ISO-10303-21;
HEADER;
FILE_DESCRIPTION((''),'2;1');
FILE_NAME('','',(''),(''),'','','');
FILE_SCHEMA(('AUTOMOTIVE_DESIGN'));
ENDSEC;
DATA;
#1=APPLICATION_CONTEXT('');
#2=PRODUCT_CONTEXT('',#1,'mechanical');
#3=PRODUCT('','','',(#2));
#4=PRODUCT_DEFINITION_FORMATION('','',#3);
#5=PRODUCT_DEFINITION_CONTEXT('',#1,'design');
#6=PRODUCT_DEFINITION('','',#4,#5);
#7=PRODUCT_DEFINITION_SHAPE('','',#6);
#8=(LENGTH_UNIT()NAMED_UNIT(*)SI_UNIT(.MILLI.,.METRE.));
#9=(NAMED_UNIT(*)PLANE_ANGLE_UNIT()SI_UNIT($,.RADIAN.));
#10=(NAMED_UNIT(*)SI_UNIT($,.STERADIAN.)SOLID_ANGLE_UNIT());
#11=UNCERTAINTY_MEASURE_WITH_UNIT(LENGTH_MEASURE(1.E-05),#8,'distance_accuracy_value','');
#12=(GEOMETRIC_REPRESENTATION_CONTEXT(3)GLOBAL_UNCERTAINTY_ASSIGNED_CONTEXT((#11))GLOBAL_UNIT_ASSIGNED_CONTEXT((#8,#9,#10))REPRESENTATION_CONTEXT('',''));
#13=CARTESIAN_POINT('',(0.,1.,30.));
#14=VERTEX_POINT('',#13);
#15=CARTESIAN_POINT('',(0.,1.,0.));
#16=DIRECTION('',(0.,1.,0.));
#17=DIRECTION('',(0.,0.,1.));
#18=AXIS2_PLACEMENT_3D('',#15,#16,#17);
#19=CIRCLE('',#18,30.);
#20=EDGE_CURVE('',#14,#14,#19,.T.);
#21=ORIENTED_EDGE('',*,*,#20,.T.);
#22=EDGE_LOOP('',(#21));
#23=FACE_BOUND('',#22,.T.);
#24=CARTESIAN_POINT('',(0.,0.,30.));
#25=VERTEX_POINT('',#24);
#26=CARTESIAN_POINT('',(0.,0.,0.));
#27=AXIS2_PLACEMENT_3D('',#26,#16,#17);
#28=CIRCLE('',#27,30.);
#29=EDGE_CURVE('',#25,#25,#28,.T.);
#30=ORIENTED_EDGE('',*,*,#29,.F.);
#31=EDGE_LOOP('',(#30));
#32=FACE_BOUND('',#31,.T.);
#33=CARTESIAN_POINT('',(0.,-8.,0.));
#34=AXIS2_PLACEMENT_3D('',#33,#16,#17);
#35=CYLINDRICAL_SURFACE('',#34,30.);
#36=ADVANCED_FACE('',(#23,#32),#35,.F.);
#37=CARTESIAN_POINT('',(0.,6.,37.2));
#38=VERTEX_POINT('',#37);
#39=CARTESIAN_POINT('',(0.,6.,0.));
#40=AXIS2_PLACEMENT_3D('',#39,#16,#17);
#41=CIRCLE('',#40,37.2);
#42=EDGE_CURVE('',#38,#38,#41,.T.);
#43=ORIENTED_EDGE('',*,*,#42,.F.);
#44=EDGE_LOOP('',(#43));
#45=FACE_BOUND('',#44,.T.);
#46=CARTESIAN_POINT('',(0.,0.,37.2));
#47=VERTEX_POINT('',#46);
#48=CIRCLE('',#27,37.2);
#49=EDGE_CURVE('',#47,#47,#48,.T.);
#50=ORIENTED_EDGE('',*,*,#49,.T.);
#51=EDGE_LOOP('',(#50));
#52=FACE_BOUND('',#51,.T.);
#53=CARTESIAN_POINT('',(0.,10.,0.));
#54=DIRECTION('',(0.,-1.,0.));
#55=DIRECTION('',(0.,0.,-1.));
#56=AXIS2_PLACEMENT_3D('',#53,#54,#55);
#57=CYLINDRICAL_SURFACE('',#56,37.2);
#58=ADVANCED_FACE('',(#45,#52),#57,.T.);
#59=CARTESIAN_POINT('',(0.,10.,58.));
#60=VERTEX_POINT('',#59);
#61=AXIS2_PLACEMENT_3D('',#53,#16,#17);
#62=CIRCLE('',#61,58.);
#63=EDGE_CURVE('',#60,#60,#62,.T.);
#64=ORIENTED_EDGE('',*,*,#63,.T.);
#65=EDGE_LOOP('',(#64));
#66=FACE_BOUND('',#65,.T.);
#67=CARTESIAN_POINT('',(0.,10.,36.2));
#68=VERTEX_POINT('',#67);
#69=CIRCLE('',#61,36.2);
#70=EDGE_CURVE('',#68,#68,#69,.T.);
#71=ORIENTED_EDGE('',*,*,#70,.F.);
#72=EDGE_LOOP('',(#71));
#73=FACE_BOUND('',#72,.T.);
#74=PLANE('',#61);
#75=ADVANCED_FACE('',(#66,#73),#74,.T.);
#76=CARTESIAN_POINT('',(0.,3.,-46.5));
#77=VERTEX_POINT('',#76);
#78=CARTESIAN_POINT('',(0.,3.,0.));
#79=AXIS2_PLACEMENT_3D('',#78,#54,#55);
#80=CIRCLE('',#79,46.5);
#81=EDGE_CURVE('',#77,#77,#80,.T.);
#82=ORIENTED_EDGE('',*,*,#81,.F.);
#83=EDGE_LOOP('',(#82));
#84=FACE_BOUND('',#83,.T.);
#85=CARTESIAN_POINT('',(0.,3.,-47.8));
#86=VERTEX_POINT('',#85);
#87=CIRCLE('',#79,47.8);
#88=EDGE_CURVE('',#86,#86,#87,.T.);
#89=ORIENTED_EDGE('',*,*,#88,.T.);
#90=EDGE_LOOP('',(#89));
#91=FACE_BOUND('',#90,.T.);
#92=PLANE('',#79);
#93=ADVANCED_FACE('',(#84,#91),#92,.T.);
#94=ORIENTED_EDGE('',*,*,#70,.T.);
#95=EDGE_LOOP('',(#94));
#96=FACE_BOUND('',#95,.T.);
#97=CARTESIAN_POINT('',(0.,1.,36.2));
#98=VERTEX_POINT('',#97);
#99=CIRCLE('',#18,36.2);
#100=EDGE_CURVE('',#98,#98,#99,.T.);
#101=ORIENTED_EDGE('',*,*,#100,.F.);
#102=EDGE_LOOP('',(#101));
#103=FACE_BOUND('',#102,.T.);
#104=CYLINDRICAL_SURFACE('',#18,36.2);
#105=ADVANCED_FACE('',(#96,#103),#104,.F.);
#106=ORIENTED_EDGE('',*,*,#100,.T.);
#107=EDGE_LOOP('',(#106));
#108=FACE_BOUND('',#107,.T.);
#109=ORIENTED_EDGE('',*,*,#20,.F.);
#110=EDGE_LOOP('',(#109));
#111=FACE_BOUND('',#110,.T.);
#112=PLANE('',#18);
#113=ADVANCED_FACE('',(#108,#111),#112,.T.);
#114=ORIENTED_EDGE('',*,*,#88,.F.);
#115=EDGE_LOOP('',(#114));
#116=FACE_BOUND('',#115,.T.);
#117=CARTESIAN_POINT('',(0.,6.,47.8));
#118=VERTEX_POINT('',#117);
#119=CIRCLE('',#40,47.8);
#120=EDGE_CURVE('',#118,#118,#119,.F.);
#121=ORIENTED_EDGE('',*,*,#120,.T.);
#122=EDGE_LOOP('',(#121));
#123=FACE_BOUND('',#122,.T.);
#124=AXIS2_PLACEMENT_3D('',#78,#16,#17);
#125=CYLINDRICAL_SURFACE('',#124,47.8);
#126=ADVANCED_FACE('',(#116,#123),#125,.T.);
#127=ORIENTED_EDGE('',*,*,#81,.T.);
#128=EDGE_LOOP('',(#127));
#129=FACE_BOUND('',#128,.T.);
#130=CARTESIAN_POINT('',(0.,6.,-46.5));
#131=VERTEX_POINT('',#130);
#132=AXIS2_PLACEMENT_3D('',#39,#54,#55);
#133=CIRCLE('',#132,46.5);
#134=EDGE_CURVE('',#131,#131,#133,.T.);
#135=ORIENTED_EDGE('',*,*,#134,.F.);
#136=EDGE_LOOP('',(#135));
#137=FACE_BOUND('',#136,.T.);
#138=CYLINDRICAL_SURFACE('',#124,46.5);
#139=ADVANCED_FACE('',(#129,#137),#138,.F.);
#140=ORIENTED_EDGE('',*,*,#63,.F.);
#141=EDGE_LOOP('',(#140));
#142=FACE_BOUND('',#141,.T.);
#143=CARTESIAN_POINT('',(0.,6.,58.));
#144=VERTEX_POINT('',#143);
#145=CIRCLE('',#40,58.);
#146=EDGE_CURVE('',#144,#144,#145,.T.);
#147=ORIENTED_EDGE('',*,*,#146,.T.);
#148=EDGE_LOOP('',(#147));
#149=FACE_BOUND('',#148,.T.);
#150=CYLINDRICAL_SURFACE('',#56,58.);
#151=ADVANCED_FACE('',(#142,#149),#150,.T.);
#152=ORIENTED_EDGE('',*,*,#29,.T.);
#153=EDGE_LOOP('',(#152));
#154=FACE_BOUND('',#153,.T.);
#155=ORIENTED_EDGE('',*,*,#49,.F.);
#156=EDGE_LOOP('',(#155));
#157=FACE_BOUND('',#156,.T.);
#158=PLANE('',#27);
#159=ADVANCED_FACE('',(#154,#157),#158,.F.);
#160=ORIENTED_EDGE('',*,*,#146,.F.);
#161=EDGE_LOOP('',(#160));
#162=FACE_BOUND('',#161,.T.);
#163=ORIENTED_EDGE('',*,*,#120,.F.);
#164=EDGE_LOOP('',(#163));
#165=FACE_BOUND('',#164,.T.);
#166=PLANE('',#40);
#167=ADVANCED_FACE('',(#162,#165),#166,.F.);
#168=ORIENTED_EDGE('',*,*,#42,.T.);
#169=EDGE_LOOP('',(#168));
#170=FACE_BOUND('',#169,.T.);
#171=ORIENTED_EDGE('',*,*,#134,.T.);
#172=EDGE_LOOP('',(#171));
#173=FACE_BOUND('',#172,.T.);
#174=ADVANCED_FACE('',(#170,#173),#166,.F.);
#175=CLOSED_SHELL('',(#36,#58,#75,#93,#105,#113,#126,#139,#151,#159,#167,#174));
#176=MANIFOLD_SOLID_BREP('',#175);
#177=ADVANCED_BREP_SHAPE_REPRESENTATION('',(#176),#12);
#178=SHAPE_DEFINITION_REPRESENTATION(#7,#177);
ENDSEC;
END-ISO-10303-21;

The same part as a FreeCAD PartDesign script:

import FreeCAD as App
import Part
import Sketcher

V = App.Vector
Q = App.Units.Quantity

doc = App.newDocument("Part")
body = doc.addObject("PartDesign::Body", "Body")

# Sketch on XZ plane
sketch1 = doc.addObject("Sketcher::SketchObject", "Sketch")
body.addObject(sketch1)
sketch1.AttachmentSupport = (doc.XZ_Plane, [""])
sketch1.MapMode = "FlatFace"
sketch1.addGeometry(Part.Circle(V(0, 0, 0), V(0, 0, 1), 37), False)
sketch1.addConstraint([
    Sketcher.Constraint("Coincident", 0, 3, -1, 1),
    Sketcher.Constraint("Diameter", 0, Q("74.4 mm")),
])
pad1 = doc.addObject("PartDesign::Pad", "Pad")
body.addObject(pad1)
pad1.Profile = sketch1
pad1.Length = 10
pad1.Reversed = True

# Sketch on XZ plane
sketch2 = doc.addObject("Sketcher::SketchObject", "Sketch001")
body.addObject(sketch2)
sketch2.AttachmentSupport = (doc.XZ_Plane, [""])
sketch2.MapMode = "FlatFace"
sketch2.AttachmentOffset = App.Placement(V(0, 0, -10), App.Rotation())
sketch2.addGeometry(Part.Circle(V(0, 0, 0), V(0, 0, 1), 36), False)
sketch2.addConstraint([
    Sketcher.Constraint("Coincident", 0, 3, -1, 1),
    Sketcher.Constraint("Diameter", 0, Q("72.4 mm")),
])
pocket1 = doc.addObject("PartDesign::Pocket", "Pocket")
body.addObject(pocket1)
pocket1.Profile = sketch2
pocket1.Length = 9
pocket1.Reversed = True

# Sketch on XZ plane
sketch3 = doc.addObject("Sketcher::SketchObject", "Sketch002")
body.addObject(sketch3)
sketch3.AttachmentSupport = (doc.XZ_Plane, [""])
sketch3.MapMode = "FlatFace"
sketch3.AttachmentOffset = App.Placement(V(0, 0, -1), App.Rotation())
sketch3.addGeometry(Part.Circle(V(0, 0, 0), V(0, 0, 1), 30), False)
sketch3.addConstraint([
    Sketcher.Constraint("Coincident", 0, 3, -1, 1),
    Sketcher.Constraint("Diameter", 0, Q("60 mm")),
])
pocket2 = doc.addObject("PartDesign::Pocket", "Pocket001")
body.addObject(pocket2)
pocket2.Profile = sketch3
pocket2.Length = 9
pocket2.Reversed = True

# Sketch on XZ plane
sketch4 = doc.addObject("Sketcher::SketchObject", "Sketch003")
body.addObject(sketch4)
sketch4.AttachmentSupport = (doc.XZ_Plane, [""])
sketch4.MapMode = "FlatFace"
sketch4.AttachmentOffset = App.Placement(V(0, 0, -6), App.Rotation())
sketch4.addGeometry([
    Part.Circle(V(0, 0, 0), V(0, 0, 1), 58),
    Part.Circle(V(0, 0, 0), V(0, 0, 1), 37),
], False)
sketch4.addConstraint([
    Sketcher.Constraint("Coincident", 0, 3, -1, 1),
    Sketcher.Constraint("Coincident", 1, 3, -1, 1),
    Sketcher.Constraint("Diameter", 0, Q("116 mm")),
    Sketcher.Constraint("Diameter", 1, Q("74.4 mm")),
])
pad2 = doc.addObject("PartDesign::Pad", "Pad001")
body.addObject(pad2)
pad2.Profile = sketch4
pad2.Length = 4
pad2.Reversed = True

# Sketch on XZ plane
sketch5 = doc.addObject("Sketcher::SketchObject", "Sketch004")
body.addObject(sketch5)
sketch5.AttachmentSupport = (doc.XZ_Plane, [""])
sketch5.MapMode = "FlatFace"
sketch5.AttachmentOffset = App.Placement(V(0, 0, -6), App.Rotation())
sketch5.addGeometry([
    Part.Circle(V(0, 0, 0), V(0, 0, 1), 48),
    Part.Circle(V(0, 0, 0), V(0, 0, 1), 46),
], False)
sketch5.addConstraint([
    Sketcher.Constraint("Coincident", 0, 3, -1, 1),
    Sketcher.Constraint("Coincident", 1, 3, -1, 1),
    Sketcher.Constraint("Diameter", 1, Q("93 mm")),
    Sketcher.Constraint("Diameter", 0, Q("95.6 mm")),
])
pad3 = doc.addObject("PartDesign::Pad", "Pad002")
body.addObject(pad3)
pad3.Profile = sketch5
pad3.Length = 3

doc.recompute()
